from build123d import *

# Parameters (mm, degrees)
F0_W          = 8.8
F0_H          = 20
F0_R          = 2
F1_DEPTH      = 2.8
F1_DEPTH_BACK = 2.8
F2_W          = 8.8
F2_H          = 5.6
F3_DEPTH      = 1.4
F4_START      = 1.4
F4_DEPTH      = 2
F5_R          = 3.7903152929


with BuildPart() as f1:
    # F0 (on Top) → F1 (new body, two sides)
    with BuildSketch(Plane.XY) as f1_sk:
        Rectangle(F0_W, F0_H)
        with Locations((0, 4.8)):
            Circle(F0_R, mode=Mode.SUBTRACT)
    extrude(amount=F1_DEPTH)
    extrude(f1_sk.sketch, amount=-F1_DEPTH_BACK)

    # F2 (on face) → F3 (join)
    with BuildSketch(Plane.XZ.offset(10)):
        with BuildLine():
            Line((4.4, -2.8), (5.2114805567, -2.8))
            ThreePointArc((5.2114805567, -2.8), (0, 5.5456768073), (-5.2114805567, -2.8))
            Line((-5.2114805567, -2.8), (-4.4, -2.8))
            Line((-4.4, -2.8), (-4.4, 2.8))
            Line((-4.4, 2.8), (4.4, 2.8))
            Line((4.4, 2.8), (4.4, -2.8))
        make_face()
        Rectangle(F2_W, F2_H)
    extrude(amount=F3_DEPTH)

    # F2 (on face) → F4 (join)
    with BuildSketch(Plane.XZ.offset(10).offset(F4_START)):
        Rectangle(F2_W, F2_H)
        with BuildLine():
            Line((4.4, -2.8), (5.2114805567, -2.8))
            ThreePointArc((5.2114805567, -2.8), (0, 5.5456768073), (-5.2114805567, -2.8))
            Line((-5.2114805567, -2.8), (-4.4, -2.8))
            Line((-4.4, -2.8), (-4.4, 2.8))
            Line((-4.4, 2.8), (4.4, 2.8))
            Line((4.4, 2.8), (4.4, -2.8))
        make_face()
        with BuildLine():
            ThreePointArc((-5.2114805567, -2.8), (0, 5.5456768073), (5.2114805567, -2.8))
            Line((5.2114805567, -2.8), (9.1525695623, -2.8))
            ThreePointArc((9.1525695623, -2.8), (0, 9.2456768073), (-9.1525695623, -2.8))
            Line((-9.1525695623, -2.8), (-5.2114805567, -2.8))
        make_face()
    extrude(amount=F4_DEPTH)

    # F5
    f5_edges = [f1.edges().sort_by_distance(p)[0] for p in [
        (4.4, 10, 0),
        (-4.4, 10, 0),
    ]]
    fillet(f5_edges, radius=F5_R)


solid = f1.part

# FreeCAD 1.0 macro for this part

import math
import FreeCAD as App
import Part
import Sketcher

V = App.Vector
Q = App.Units.Quantity


def edges_at(feature, points):
    """Names of the edges that pass closest to the given points."""
    edges = feature.Shape.Edges
    near = lambda p: min(range(len(edges)), key=lambda i: edges[i].distToShape(Part.Vertex(*p))[0])
    return sorted({f"Edge{near(p) + 1}" for p in points})

doc = App.newDocument("Part")
body = doc.addObject("PartDesign::Body", "Body")

# Sketch on XY plane
sketch1 = doc.addObject("Sketcher::SketchObject", "Sketch")
body.addObject(sketch1)
sketch1.AttachmentSupport = (doc.XY_Plane, [""])
sketch1.MapMode = "FlatFace"
sketch1.addGeometry(Part.LineSegment(V(-4.4, 10, 0), V(-4.4, -10, 0)), False)
sketch1.addGeometry(Part.LineSegment(V(-4.4, -10, 0), V(4.4, -10, 0)), False)
sketch1.addGeometry(Part.LineSegment(V(4.4, -10, 0), V(4.4, 10, 0)), False)
sketch1.addGeometry(Part.LineSegment(V(4.4, 10, 0), V(-4.4, 10, 0)), False)
sketch1.addGeometry(Part.Circle(V(0, 4.8, 0), V(0, 0, 1), 2), False)
sketch1.addConstraint(Sketcher.Constraint("Coincident", 0, 2, 1, 1))
sketch1.addConstraint(Sketcher.Constraint("Coincident", 1, 2, 2, 1))
sketch1.addConstraint(Sketcher.Constraint("Coincident", 2, 2, 3, 1))
sketch1.addConstraint(Sketcher.Constraint("Coincident", 3, 2, 0, 1))
sketch1.addConstraint(Sketcher.Constraint("Vertical", 0))
sketch1.addConstraint(Sketcher.Constraint("Horizontal", 1))
sketch1.addConstraint(Sketcher.Constraint("Vertical", 2))
sketch1.addConstraint(Sketcher.Constraint("Horizontal", 3))
sketch1.addConstraint(Sketcher.Constraint("Symmetric", 0, 2, 2, 2, -1, 1))
sketch1.addConstraint(Sketcher.Constraint("PointOnObject", 4, 3, -2))
sketch1.addConstraint(Sketcher.Constraint("Diameter", 4, Q("4 mm")))
sketch1.addConstraint(Sketcher.Constraint("DistanceY", 0, 2, 0, 1, Q("20 mm")))
sketch1.addConstraint(Sketcher.Constraint("DistanceX", 1, 1, 1, 2, Q("8.8 mm")))
sketch1.addConstraint(Sketcher.Constraint("DistanceY", -1, 1, 4, 3, Q("4.8 mm")))
pad1 = doc.addObject("PartDesign::Pad", "Pad")
body.addObject(pad1)
pad1.Profile = sketch1
pad1.Type = "TwoLengths"
pad1.Length = 2.8
pad1.Length2 = 2.8

# Sketch on XZ plane
sketch2 = doc.addObject("Sketcher::SketchObject", "Sketch001")
body.addObject(sketch2)
sketch2.AttachmentSupport = (doc.XZ_Plane, [""])
sketch2.MapMode = "FlatFace"
sketch2.AttachmentOffset = App.Placement(V(0, 0, 10), App.Rotation())
sketch2.addGeometry(Part.ArcOfCircle(Part.Circle(V(0, -0.254323, 0), V(0, 0, 1), 5.8), math.radians(-26.034342), math.radians(206.034342)), False)
sketch2.addGeometry(Part.LineSegment(V(-5.211481, -2.8, 0), V(5.211481, -2.8, 0)), False)
sketch2.addConstraint(Sketcher.Constraint("Coincident", 0, 1, 1, 2))
sketch2.addConstraint(Sketcher.Constraint("Coincident", 1, 1, 0, 2))
sketch2.addConstraint(Sketcher.Constraint("Horizontal", 1))
sketch2.addConstraint(Sketcher.Constraint("PointOnObject", 0, 3, -2))
sketch2.addConstraint(Sketcher.Constraint("Radius", 0, Q("5.8 mm")))
sketch2.addConstraint(Sketcher.Constraint("DistanceY", 0, 1, -1, 1, Q("2.8 mm")))
sketch2.addConstraint(Sketcher.Constraint("DistanceX", 1, 1, 1, 2, Q("10.422961 mm")))
pad2 = doc.addObject("PartDesign::Pad", "Pad001")
body.addObject(pad2)
pad2.Profile = sketch2
pad2.Length = 1.4

# Sketch on XZ plane
sketch3 = doc.addObject("Sketcher::SketchObject", "Sketch002")
body.addObject(sketch3)
sketch3.AttachmentSupport = (doc.XZ_Plane, [""])
sketch3.MapMode = "FlatFace"
sketch3.AttachmentOffset = App.Placement(V(0, 0, 11.4), App.Rotation())
sketch3.addGeometry(Part.ArcOfCircle(Part.Circle(V(0, -0.254323, 0), V(0, 0, 1), 9.5), math.radians(-15.543267), math.radians(195.543267)), False)
sketch3.addGeometry(Part.LineSegment(V(-9.15257, -2.8, 0), V(9.15257, -2.8, 0)), False)
sketch3.addConstraint(Sketcher.Constraint("Coincident", 0, 1, 1, 2))
sketch3.addConstraint(Sketcher.Constraint("Coincident", 1, 1, 0, 2))
sketch3.addConstraint(Sketcher.Constraint("Horizontal", 1))
sketch3.addConstraint(Sketcher.Constraint("PointOnObject", 0, 3, -2))
sketch3.addConstraint(Sketcher.Constraint("Radius", 0, Q("9.5 mm")))
sketch3.addConstraint(Sketcher.Constraint("DistanceY", 0, 1, -1, 1, Q("2.8 mm")))
sketch3.addConstraint(Sketcher.Constraint("DistanceX", 1, 1, 1, 2, Q("18.305139 mm")))
pad3 = doc.addObject("PartDesign::Pad", "Pad002")
body.addObject(pad3)
pad3.Profile = sketch3
pad3.Length = 2
doc.recompute()

fillet = doc.addObject("PartDesign::Fillet", "Fillet")
body.addObject(fillet)
fillet.Base = (pad3, edges_at(pad3, [(4.4, 10, 0), (-4.4, 10, 0)]))
fillet.Radius = 3.790315

doc.recompute()
